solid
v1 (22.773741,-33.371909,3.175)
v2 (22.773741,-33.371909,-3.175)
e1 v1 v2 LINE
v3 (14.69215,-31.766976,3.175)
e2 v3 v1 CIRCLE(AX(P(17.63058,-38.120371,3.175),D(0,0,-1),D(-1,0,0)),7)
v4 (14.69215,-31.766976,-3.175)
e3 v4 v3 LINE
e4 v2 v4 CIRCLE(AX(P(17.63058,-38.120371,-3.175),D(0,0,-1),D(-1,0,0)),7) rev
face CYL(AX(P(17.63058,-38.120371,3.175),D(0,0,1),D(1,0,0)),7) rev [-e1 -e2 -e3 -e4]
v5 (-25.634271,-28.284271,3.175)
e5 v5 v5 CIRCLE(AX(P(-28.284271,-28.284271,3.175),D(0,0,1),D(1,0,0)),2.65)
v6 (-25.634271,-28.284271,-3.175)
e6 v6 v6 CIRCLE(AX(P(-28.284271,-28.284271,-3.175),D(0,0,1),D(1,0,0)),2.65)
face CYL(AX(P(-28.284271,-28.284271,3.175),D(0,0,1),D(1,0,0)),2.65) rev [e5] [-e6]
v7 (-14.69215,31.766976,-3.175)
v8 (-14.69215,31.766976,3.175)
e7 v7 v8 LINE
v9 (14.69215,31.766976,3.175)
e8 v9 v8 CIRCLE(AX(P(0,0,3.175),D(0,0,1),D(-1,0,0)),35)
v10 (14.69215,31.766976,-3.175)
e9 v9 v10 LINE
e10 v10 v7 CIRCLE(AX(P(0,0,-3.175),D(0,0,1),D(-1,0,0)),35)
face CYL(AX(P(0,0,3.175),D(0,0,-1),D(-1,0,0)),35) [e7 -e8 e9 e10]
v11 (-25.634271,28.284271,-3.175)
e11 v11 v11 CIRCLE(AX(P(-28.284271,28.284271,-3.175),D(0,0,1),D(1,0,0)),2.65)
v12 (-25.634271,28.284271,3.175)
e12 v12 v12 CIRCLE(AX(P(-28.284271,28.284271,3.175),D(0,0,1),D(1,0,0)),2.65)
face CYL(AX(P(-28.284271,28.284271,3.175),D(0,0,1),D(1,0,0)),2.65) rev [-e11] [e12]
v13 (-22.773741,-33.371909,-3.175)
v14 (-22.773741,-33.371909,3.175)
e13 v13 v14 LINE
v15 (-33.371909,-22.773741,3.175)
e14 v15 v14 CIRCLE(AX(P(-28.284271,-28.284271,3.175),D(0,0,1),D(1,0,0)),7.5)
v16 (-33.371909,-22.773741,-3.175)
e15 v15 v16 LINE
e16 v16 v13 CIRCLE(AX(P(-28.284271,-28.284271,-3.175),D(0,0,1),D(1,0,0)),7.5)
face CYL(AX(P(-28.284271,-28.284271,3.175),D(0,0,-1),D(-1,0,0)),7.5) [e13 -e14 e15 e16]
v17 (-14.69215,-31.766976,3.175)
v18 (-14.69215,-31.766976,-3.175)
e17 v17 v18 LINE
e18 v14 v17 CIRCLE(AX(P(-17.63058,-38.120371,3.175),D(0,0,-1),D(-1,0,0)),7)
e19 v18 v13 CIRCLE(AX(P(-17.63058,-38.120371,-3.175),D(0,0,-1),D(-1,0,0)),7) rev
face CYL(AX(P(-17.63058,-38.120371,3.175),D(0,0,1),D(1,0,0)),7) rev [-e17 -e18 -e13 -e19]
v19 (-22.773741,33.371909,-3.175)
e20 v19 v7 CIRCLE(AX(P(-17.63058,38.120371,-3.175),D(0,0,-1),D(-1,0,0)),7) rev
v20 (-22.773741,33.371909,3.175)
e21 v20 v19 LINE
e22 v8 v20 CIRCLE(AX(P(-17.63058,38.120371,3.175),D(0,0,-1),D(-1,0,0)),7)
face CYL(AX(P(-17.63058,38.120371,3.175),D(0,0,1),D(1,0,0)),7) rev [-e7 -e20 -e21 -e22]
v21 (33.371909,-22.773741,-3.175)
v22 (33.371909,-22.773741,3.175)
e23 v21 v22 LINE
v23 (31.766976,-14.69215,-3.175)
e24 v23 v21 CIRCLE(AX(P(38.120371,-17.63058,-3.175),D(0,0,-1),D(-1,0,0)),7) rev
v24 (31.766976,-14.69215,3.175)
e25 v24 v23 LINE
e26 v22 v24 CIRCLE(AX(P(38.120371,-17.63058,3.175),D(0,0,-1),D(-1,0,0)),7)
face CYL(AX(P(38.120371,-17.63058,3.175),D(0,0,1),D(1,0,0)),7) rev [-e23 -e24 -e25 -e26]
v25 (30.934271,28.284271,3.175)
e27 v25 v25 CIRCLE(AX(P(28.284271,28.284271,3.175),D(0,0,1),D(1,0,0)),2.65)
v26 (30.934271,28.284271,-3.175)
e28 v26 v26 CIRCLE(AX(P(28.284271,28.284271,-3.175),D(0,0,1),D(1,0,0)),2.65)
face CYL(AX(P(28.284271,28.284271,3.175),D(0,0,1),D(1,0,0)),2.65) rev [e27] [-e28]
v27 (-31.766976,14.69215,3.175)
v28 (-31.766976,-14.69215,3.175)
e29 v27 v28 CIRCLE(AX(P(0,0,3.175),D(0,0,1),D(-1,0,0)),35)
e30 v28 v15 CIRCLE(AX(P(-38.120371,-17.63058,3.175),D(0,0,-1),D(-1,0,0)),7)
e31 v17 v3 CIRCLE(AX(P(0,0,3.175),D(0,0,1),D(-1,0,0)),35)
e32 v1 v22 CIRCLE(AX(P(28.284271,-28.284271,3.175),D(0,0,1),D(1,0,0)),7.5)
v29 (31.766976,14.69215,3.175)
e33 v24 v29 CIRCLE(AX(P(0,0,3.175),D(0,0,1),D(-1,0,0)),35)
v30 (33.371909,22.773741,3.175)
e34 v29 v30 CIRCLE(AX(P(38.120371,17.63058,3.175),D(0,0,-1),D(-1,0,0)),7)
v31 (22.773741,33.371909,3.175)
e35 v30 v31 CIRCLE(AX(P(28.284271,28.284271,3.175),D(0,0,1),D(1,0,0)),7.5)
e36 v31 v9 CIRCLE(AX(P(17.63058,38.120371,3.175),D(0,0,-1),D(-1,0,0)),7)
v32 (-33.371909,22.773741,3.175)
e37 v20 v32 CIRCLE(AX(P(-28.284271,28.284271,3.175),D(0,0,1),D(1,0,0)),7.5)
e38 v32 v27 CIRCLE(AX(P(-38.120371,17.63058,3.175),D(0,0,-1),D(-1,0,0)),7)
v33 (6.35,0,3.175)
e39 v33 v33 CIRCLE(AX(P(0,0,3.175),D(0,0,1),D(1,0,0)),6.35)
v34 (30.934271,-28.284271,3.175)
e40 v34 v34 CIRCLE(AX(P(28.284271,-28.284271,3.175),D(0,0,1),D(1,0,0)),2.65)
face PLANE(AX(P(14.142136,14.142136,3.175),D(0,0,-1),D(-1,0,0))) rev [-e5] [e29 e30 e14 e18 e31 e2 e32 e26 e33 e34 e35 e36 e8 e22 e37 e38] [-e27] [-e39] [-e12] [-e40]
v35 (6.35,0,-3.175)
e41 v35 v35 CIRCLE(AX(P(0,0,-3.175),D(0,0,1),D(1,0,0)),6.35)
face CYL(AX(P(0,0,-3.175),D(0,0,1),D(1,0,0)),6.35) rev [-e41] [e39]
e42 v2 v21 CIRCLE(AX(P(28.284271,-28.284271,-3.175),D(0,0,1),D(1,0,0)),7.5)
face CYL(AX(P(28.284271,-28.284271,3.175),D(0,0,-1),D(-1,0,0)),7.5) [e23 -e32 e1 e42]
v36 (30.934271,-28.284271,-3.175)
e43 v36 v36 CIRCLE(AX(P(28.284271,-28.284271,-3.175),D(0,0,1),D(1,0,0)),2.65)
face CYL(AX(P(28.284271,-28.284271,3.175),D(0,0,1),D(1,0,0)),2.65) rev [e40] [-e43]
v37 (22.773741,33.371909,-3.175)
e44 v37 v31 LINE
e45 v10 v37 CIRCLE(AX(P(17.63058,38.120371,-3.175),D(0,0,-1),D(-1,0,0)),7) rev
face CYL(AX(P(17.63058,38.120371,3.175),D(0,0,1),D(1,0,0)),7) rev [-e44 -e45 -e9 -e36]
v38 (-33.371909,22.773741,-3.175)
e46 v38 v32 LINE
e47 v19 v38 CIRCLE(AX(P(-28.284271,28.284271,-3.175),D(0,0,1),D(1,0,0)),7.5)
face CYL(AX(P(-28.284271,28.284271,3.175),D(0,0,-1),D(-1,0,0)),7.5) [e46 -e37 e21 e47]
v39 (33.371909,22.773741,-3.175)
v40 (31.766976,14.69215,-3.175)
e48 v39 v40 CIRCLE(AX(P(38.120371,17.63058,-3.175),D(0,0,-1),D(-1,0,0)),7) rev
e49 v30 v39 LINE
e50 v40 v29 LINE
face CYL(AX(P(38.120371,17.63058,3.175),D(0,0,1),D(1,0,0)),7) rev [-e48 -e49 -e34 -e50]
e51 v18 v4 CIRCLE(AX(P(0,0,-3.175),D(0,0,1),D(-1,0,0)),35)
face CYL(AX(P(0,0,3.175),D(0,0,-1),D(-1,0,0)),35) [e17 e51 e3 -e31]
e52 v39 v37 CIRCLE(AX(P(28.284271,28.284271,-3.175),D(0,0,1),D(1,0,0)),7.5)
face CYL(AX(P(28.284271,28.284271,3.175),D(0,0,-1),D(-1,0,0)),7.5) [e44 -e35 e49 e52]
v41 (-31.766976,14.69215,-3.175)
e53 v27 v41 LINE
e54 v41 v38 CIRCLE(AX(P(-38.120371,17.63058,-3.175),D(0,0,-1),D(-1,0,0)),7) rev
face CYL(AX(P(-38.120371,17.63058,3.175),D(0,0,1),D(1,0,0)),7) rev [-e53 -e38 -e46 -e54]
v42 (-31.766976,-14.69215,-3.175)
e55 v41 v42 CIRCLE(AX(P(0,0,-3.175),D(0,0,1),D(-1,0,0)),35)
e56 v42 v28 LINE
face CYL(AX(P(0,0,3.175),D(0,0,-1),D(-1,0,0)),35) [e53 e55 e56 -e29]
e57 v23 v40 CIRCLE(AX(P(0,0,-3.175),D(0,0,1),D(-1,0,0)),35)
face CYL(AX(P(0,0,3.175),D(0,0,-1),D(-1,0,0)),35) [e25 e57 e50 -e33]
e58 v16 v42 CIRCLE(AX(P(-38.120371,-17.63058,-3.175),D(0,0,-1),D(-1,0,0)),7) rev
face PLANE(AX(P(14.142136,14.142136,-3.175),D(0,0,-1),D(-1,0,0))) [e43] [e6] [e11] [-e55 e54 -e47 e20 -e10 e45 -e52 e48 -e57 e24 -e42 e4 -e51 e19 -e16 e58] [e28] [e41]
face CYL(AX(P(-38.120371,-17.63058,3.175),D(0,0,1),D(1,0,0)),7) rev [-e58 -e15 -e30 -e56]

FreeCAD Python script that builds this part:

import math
import FreeCAD as App
import Part
import Sketcher
from FreeCAD import Vector


def edges_at(feature, points):
    """Names of the edges that pass closest to the given points."""
    edges = feature.Shape.Edges
    near = lambda p: min(range(len(edges)), key=lambda i: edges[i].distToShape(Part.Vertex(*p))[0])
    return sorted({f"Edge{near(p) + 1}" for p in points})

doc = App.newDocument("Part")
body = doc.addObject("PartDesign::Body", "Body")

# Sketch on XY plane
sketch1 = body.newObject("Sketcher::SketchObject", "Sketch")
sketch1.AttachmentSupport = (doc.getObject("XY_Plane"), [""])
sketch1.MapMode = "FlatFace"
sketch1.addGeometry([
    Part.ArcOfCircle(Part.Circle(Vector(-28.284271, 28.284271, 0), Vector(0, 0, 1), 7.5), math.radians(-0.951374), math.radians(270.951374)),  # 0
    Part.ArcOfCircle(Part.Circle(Vector(0, 0, 0), Vector(0, 0, 1), 35), math.radians(143.568176), math.radians(216.431824)),  # 1
    Part.ArcOfCircle(Part.Circle(Vector(-28.284271, -28.284271, 0), Vector(0, 0, 1), 7.5), math.radians(89.048626), math.radians(360.951374)),  # 2
    Part.ArcOfCircle(Part.Circle(Vector(0, 0, 0), Vector(0, 0, 1), 35), math.radians(-126.431824), math.radians(-53.568176)),  # 3
    Part.ArcOfCircle(Part.Circle(Vector(28.284271, -28.284271, 0), Vector(0, 0, 1), 7.5), math.radians(179.048626), math.radians(450.951374)),  # 4
    Part.ArcOfCircle(Part.Circle(Vector(0, 0, 0), Vector(0, 0, 1), 35), math.radians(-36.431824), math.radians(36.431824)),  # 5
    Part.ArcOfCircle(Part.Circle(Vector(28.284271, 28.284271, 0), Vector(0, 0, 1), 7.5), math.radians(-90.951374), math.radians(180.951374)),  # 6
    Part.ArcOfCircle(Part.Circle(Vector(0, 0, 0), Vector(0, 0, 1), 35), math.radians(53.568176), math.radians(126.431824)),  # 7
], False)
sketch1.addConstraint([
    Sketcher.Constraint("Coincident", 0, 2, 1, 1),
    Sketcher.Constraint("Coincident", 1, 2, 2, 1),
    Sketcher.Constraint("Coincident", 2, 2, 3, 1),
    Sketcher.Constraint("Coincident", 3, 2, 4, 1),
    Sketcher.Constraint("Coincident", 4, 2, 5, 1),
    Sketcher.Constraint("Coincident", 5, 2, 6, 1),
    Sketcher.Constraint("Coincident", 6, 2, 7, 1),
    Sketcher.Constraint("Coincident", 7, 2, 0, 1),
    Sketcher.Constraint("Coincident", 1, 3, -1, 1),
    Sketcher.Constraint("Coincident", 3, 3, -1, 1),
    Sketcher.Constraint("Coincident", 5, 3, -1, 1),
    Sketcher.Constraint("Coincident", 7, 3, -1, 1),
    Sketcher.Constraint("Equal", 0, 2),
    Sketcher.Constraint("Equal", 1, 3),
    Sketcher.Constraint("Equal", 2, 4),
    Sketcher.Constraint("Equal", 3, 5),
    Sketcher.Constraint("Equal", 4, 6),
    Sketcher.Constraint("Equal", 5, 7),
    Sketcher.Constraint("Symmetric", 0, 3, 4, 3, -1, 1),
    Sketcher.Constraint("Symmetric", 2, 3, 6, 3, -1, 1),
    Sketcher.Constraint("Symmetric", 2, 3, 4, 3, -2),
    Sketcher.Constraint("Radius", 1, 35.0),
    Sketcher.Constraint("Radius", 0, 7.5),
    Sketcher.Constraint("DistanceX", 0, 3, -1, 1, 28.284271),
    Sketcher.Constraint("DistanceY", -1, 1, 0, 3, 28.284271),
])
pad1 = body.newObject("PartDesign::Pad", "Pad")
pad1.Profile = sketch1
pad1.Length = 6.35
pad1.Midplane = True
doc.recompute()

fillet = body.newObject("PartDesign::Fillet", "Fillet")
fillet.Base = (pad1, edges_at(pad1, [
    (20.785, 28.16, 0),
    (28.16, 20.785, 0),
    (28.16, -20.785, 0),
    (20.785, -28.16, 0),
    (-20.785, -28.16, 0),
    (-28.16, -20.785, 0),
    (-28.16, 20.785, 0),
    (-20.785, 28.16, 0),
]))
fillet.Radius = 7

# Sketch on XY plane
sketch2 = body.newObject("Sketcher::SketchObject", "Sketch001")
sketch2.AttachmentSupport = (doc.getObject("XY_Plane"), [""])
sketch2.MapMode = "FlatFace"
sketch2.AttachmentOffset = App.Placement(Vector(0, 0, 3.175), App.Rotation())
sketch2.addGeometry([
    Part.Circle(Vector(-28.284271, 28.284271, 0), Vector(0, 0, 1), 2.65),
    Part.Circle(Vector(28.284271, 28.284271, 0), Vector(0, 0, 1), 2.65),
    Part.Circle(Vector(28.284271, -28.284271, 0), Vector(0, 0, 1), 2.65),
    Part.Circle(Vector(-28.284271, -28.284271, 0), Vector(0, 0, 1), 2.65),
], False)
sketch2.addConstraint([
    Sketcher.Constraint("Equal", 0, 1),
    Sketcher.Constraint("Equal", 1, 2),
    Sketcher.Constraint("Equal", 2, 3),
    Sketcher.Constraint("Symmetric", 0, 3, 2, 3, -1, 1),
    Sketcher.Constraint("Symmetric", 1, 3, 3, 3, -1, 1),
    Sketcher.Constraint("Symmetric", 0, 3, 1, 3, -2),
    Sketcher.Constraint("Diameter", 0, 5.3),
    Sketcher.Constraint("DistanceX", 0, 3, -1, 1, 28.284271),
    Sketcher.Constraint("DistanceY", -1, 1, 0, 3, 28.284271),
])
doc.recompute()
hole = body.newObject("PartDesign::Hole", "Hole")
hole.Profile = sketch2
hole.ThreadType = "None"
hole.Diameter = 5.3
hole.DepthType = "Dimension"
hole.Depth = 6.35
hole.DrillPoint = "Angled"
hole.DrillPointAngle = 118

# Sketch on XY plane
sketch3 = body.newObject("Sketcher::SketchObject", "Sketch002")
sketch3.AttachmentSupport = (doc.getObject("XY_Plane"), [""])
sketch3.MapMode = "FlatFace"
sketch3.AttachmentOffset = App.Placement(Vector(0, 0, 3.175), App.Rotation())
sketch3.addGeometry(Part.Circle(Vector(0, 0, 0), Vector(0, 0, 1), 6.35), False)
sketch3.addConstraint([
    Sketcher.Constraint("Coincident", 0, 3, -1, 1),
    Sketcher.Constraint("Diameter", 0, 12.7),
])
pocket1 = body.newObject("PartDesign::Pocket", "Pocket")
pocket1.Profile = sketch3
pocket1.Type = "ThroughAll"

doc.recompute()
